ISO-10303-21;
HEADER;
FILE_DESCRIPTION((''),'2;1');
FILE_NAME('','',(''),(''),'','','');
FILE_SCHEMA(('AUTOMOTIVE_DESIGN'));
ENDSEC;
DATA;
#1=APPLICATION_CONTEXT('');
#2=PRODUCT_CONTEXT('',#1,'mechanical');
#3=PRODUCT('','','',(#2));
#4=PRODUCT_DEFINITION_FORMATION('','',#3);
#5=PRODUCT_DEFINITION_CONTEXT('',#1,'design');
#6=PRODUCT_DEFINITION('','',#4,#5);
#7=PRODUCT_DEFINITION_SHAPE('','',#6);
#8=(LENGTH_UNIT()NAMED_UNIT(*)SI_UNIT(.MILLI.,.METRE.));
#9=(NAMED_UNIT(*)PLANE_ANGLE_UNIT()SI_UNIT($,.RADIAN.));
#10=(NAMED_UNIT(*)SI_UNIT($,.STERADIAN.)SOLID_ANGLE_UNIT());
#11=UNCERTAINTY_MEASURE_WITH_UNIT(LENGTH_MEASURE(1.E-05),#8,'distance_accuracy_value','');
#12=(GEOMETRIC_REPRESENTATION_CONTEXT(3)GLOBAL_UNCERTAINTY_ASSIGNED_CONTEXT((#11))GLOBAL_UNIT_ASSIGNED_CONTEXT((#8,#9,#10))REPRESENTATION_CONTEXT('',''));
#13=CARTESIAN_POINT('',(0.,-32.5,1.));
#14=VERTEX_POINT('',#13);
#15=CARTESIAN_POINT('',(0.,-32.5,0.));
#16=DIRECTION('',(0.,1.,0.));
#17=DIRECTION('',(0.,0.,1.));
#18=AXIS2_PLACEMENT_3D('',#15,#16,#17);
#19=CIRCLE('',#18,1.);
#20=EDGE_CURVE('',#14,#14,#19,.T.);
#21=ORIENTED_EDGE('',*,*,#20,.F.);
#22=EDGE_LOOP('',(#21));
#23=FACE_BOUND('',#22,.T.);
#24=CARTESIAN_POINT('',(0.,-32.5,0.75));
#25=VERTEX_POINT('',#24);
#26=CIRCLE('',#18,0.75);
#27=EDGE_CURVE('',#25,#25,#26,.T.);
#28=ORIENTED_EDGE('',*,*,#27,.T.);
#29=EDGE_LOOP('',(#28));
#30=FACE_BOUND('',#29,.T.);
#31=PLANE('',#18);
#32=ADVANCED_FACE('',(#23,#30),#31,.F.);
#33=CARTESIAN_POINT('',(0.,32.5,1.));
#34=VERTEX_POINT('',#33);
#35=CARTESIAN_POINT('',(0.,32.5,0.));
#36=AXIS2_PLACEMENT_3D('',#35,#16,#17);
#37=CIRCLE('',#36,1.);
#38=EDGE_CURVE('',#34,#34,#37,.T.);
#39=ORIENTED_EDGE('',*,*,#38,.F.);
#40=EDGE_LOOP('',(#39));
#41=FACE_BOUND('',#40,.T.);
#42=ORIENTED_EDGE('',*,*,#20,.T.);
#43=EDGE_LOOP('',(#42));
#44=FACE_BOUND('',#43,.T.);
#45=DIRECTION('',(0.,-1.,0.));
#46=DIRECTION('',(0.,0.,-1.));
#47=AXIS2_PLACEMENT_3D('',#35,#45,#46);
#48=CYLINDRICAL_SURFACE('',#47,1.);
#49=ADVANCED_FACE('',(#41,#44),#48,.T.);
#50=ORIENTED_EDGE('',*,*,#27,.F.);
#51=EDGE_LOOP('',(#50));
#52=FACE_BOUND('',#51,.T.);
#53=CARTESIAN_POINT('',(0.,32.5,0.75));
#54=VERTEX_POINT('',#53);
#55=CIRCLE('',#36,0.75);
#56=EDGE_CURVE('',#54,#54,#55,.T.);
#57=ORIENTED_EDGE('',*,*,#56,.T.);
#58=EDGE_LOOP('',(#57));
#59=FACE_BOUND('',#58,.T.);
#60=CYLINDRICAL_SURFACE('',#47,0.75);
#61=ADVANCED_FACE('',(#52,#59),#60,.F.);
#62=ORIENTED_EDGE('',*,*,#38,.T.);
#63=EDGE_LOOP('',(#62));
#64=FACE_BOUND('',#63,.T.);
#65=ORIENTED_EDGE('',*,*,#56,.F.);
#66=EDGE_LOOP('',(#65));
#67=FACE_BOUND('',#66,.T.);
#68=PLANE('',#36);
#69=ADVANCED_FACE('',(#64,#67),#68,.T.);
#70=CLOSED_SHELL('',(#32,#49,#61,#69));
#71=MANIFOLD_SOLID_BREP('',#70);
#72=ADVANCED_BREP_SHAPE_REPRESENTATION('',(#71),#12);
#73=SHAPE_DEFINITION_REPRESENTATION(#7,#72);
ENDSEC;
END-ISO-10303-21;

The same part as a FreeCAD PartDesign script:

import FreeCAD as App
import Part
import Sketcher
from FreeCAD import Vector

doc = App.newDocument("Part")
body = doc.addObject("PartDesign::Body", "Body")

sketch1 = body.newObject("Sketcher::SketchObject", "Sketch")
sketch1.AttachmentSupport = (doc.getObject("XZ_Plane"), [""])
sketch1.MapMode = "FlatFace"
sketch1.addGeometry(Part.Circle(Vector(0, 0, 0), Vector(0, 0, 1), 1), False)
sketch1.addGeometry(Part.Circle(Vector(0, 0, 0), Vector(0, 0, 1), 0.75), False)
sketch1.addConstraint(Sketcher.Constraint("Coincident", 0, 3, -1, 1))
sketch1.addConstraint(Sketcher.Constraint("Coincident", 1, 3, -1, 1))
sketch1.addConstraint(Sketcher.Constraint("Diameter", 0, 2.0))
sketch1.addConstraint(Sketcher.Constraint("Diameter", 1, 1.5))
pad1 = body.newObject("PartDesign::Pad", "Pad")
pad1.Profile = sketch1
pad1.Length = 65
pad1.Midplane = True

doc.recompute()
